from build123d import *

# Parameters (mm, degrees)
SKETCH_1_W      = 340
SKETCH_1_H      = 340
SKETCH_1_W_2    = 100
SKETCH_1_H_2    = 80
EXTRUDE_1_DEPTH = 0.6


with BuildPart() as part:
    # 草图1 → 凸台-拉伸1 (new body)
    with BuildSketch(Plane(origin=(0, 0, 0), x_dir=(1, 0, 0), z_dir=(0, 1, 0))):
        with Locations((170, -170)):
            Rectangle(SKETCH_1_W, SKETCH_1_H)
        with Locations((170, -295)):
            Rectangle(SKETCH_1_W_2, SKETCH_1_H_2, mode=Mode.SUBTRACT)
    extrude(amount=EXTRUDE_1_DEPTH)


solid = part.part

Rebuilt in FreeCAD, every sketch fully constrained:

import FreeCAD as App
import Part
import Sketcher

V = App.Vector
Q = App.Units.Quantity

doc = App.newDocument("Part")
body = doc.addObject("PartDesign::Body", "Body")

sketch1 = body.newObject("Sketcher::SketchObject", "Sketch")
sketch1.AttachmentSupport = (doc.getObject("XZ_Plane"), [""])
sketch1.MapMode = "FlatFace"
sketch1.addGeometry(Part.LineSegment(V(0, 0, 0), V(0, 340, 0)), False)
sketch1.addGeometry(Part.LineSegment(V(0, 340, 0), V(340, 340, 0)), False)
sketch1.addGeometry(Part.LineSegment(V(340, 340, 0), V(340, 0, 0)), False)
sketch1.addGeometry(Part.LineSegment(V(340, 0, 0), V(0, 0, 0)), False)
sketch1.addGeometry(Part.LineSegment(V(220, 335, 0), V(120, 335, 0)), False)
sketch1.addGeometry(Part.LineSegment(V(120, 335, 0), V(120, 255, 0)), False)
sketch1.addGeometry(Part.LineSegment(V(120, 255, 0), V(220, 255, 0)), False)
sketch1.addGeometry(Part.LineSegment(V(220, 255, 0), V(220, 335, 0)), False)
sketch1.addConstraint(Sketcher.Constraint("Coincident", 0, 2, 1, 1))
sketch1.addConstraint(Sketcher.Constraint("Coincident", 1, 2, 2, 1))
sketch1.addConstraint(Sketcher.Constraint("Coincident", 2, 2, 3, 1))
sketch1.addConstraint(Sketcher.Constraint("Coincident", 3, 2, 0, 1))
sketch1.addConstraint(Sketcher.Constraint("Coincident", 4, 2, 5, 1))
sketch1.addConstraint(Sketcher.Constraint("Coincident", 5, 2, 6, 1))
sketch1.addConstraint(Sketcher.Constraint("Coincident", 6, 2, 7, 1))
sketch1.addConstraint(Sketcher.Constraint("Coincident", 7, 2, 4, 1))
sketch1.addConstraint(Sketcher.Constraint("Vertical", 0))
sketch1.addConstraint(Sketcher.Constraint("Horizontal", 1))
sketch1.addConstraint(Sketcher.Constraint("Vertical", 2))
sketch1.addConstraint(Sketcher.Constraint("Horizontal", 3))
sketch1.addConstraint(Sketcher.Constraint("Horizontal", 4))
sketch1.addConstraint(Sketcher.Constraint("Vertical", 5))
sketch1.addConstraint(Sketcher.Constraint("Horizontal", 6))
sketch1.addConstraint(Sketcher.Constraint("Vertical", 7))
sketch1.addConstraint(Sketcher.Constraint("Coincident", 3, 2, -1, 1))
sketch1.addConstraint(Sketcher.Constraint("Equal", 3, 0))
sketch1.addConstraint(Sketcher.Constraint("DistanceX", 1, 1, 1, 2, Q("340 mm")))
sketch1.addConstraint(Sketcher.Constraint("DistanceX", 4, 2, 4, 1, Q("100 mm")))
sketch1.addConstraint(Sketcher.Constraint("DistanceY", 5, 2, 5, 1, Q("80 mm")))
sketch1.addConstraint(Sketcher.Constraint("DistanceX", -1, 1, 4, 2, Q("120 mm")))
sketch1.addConstraint(Sketcher.Constraint("DistanceY", -1, 1, 4, 2, Q("335 mm")))
pad1 = body.newObject("PartDesign::Pad", "Pad")
pad1.Profile = sketch1
pad1.Length = 0.6
pad1.Reversed = True

doc.recompute()
